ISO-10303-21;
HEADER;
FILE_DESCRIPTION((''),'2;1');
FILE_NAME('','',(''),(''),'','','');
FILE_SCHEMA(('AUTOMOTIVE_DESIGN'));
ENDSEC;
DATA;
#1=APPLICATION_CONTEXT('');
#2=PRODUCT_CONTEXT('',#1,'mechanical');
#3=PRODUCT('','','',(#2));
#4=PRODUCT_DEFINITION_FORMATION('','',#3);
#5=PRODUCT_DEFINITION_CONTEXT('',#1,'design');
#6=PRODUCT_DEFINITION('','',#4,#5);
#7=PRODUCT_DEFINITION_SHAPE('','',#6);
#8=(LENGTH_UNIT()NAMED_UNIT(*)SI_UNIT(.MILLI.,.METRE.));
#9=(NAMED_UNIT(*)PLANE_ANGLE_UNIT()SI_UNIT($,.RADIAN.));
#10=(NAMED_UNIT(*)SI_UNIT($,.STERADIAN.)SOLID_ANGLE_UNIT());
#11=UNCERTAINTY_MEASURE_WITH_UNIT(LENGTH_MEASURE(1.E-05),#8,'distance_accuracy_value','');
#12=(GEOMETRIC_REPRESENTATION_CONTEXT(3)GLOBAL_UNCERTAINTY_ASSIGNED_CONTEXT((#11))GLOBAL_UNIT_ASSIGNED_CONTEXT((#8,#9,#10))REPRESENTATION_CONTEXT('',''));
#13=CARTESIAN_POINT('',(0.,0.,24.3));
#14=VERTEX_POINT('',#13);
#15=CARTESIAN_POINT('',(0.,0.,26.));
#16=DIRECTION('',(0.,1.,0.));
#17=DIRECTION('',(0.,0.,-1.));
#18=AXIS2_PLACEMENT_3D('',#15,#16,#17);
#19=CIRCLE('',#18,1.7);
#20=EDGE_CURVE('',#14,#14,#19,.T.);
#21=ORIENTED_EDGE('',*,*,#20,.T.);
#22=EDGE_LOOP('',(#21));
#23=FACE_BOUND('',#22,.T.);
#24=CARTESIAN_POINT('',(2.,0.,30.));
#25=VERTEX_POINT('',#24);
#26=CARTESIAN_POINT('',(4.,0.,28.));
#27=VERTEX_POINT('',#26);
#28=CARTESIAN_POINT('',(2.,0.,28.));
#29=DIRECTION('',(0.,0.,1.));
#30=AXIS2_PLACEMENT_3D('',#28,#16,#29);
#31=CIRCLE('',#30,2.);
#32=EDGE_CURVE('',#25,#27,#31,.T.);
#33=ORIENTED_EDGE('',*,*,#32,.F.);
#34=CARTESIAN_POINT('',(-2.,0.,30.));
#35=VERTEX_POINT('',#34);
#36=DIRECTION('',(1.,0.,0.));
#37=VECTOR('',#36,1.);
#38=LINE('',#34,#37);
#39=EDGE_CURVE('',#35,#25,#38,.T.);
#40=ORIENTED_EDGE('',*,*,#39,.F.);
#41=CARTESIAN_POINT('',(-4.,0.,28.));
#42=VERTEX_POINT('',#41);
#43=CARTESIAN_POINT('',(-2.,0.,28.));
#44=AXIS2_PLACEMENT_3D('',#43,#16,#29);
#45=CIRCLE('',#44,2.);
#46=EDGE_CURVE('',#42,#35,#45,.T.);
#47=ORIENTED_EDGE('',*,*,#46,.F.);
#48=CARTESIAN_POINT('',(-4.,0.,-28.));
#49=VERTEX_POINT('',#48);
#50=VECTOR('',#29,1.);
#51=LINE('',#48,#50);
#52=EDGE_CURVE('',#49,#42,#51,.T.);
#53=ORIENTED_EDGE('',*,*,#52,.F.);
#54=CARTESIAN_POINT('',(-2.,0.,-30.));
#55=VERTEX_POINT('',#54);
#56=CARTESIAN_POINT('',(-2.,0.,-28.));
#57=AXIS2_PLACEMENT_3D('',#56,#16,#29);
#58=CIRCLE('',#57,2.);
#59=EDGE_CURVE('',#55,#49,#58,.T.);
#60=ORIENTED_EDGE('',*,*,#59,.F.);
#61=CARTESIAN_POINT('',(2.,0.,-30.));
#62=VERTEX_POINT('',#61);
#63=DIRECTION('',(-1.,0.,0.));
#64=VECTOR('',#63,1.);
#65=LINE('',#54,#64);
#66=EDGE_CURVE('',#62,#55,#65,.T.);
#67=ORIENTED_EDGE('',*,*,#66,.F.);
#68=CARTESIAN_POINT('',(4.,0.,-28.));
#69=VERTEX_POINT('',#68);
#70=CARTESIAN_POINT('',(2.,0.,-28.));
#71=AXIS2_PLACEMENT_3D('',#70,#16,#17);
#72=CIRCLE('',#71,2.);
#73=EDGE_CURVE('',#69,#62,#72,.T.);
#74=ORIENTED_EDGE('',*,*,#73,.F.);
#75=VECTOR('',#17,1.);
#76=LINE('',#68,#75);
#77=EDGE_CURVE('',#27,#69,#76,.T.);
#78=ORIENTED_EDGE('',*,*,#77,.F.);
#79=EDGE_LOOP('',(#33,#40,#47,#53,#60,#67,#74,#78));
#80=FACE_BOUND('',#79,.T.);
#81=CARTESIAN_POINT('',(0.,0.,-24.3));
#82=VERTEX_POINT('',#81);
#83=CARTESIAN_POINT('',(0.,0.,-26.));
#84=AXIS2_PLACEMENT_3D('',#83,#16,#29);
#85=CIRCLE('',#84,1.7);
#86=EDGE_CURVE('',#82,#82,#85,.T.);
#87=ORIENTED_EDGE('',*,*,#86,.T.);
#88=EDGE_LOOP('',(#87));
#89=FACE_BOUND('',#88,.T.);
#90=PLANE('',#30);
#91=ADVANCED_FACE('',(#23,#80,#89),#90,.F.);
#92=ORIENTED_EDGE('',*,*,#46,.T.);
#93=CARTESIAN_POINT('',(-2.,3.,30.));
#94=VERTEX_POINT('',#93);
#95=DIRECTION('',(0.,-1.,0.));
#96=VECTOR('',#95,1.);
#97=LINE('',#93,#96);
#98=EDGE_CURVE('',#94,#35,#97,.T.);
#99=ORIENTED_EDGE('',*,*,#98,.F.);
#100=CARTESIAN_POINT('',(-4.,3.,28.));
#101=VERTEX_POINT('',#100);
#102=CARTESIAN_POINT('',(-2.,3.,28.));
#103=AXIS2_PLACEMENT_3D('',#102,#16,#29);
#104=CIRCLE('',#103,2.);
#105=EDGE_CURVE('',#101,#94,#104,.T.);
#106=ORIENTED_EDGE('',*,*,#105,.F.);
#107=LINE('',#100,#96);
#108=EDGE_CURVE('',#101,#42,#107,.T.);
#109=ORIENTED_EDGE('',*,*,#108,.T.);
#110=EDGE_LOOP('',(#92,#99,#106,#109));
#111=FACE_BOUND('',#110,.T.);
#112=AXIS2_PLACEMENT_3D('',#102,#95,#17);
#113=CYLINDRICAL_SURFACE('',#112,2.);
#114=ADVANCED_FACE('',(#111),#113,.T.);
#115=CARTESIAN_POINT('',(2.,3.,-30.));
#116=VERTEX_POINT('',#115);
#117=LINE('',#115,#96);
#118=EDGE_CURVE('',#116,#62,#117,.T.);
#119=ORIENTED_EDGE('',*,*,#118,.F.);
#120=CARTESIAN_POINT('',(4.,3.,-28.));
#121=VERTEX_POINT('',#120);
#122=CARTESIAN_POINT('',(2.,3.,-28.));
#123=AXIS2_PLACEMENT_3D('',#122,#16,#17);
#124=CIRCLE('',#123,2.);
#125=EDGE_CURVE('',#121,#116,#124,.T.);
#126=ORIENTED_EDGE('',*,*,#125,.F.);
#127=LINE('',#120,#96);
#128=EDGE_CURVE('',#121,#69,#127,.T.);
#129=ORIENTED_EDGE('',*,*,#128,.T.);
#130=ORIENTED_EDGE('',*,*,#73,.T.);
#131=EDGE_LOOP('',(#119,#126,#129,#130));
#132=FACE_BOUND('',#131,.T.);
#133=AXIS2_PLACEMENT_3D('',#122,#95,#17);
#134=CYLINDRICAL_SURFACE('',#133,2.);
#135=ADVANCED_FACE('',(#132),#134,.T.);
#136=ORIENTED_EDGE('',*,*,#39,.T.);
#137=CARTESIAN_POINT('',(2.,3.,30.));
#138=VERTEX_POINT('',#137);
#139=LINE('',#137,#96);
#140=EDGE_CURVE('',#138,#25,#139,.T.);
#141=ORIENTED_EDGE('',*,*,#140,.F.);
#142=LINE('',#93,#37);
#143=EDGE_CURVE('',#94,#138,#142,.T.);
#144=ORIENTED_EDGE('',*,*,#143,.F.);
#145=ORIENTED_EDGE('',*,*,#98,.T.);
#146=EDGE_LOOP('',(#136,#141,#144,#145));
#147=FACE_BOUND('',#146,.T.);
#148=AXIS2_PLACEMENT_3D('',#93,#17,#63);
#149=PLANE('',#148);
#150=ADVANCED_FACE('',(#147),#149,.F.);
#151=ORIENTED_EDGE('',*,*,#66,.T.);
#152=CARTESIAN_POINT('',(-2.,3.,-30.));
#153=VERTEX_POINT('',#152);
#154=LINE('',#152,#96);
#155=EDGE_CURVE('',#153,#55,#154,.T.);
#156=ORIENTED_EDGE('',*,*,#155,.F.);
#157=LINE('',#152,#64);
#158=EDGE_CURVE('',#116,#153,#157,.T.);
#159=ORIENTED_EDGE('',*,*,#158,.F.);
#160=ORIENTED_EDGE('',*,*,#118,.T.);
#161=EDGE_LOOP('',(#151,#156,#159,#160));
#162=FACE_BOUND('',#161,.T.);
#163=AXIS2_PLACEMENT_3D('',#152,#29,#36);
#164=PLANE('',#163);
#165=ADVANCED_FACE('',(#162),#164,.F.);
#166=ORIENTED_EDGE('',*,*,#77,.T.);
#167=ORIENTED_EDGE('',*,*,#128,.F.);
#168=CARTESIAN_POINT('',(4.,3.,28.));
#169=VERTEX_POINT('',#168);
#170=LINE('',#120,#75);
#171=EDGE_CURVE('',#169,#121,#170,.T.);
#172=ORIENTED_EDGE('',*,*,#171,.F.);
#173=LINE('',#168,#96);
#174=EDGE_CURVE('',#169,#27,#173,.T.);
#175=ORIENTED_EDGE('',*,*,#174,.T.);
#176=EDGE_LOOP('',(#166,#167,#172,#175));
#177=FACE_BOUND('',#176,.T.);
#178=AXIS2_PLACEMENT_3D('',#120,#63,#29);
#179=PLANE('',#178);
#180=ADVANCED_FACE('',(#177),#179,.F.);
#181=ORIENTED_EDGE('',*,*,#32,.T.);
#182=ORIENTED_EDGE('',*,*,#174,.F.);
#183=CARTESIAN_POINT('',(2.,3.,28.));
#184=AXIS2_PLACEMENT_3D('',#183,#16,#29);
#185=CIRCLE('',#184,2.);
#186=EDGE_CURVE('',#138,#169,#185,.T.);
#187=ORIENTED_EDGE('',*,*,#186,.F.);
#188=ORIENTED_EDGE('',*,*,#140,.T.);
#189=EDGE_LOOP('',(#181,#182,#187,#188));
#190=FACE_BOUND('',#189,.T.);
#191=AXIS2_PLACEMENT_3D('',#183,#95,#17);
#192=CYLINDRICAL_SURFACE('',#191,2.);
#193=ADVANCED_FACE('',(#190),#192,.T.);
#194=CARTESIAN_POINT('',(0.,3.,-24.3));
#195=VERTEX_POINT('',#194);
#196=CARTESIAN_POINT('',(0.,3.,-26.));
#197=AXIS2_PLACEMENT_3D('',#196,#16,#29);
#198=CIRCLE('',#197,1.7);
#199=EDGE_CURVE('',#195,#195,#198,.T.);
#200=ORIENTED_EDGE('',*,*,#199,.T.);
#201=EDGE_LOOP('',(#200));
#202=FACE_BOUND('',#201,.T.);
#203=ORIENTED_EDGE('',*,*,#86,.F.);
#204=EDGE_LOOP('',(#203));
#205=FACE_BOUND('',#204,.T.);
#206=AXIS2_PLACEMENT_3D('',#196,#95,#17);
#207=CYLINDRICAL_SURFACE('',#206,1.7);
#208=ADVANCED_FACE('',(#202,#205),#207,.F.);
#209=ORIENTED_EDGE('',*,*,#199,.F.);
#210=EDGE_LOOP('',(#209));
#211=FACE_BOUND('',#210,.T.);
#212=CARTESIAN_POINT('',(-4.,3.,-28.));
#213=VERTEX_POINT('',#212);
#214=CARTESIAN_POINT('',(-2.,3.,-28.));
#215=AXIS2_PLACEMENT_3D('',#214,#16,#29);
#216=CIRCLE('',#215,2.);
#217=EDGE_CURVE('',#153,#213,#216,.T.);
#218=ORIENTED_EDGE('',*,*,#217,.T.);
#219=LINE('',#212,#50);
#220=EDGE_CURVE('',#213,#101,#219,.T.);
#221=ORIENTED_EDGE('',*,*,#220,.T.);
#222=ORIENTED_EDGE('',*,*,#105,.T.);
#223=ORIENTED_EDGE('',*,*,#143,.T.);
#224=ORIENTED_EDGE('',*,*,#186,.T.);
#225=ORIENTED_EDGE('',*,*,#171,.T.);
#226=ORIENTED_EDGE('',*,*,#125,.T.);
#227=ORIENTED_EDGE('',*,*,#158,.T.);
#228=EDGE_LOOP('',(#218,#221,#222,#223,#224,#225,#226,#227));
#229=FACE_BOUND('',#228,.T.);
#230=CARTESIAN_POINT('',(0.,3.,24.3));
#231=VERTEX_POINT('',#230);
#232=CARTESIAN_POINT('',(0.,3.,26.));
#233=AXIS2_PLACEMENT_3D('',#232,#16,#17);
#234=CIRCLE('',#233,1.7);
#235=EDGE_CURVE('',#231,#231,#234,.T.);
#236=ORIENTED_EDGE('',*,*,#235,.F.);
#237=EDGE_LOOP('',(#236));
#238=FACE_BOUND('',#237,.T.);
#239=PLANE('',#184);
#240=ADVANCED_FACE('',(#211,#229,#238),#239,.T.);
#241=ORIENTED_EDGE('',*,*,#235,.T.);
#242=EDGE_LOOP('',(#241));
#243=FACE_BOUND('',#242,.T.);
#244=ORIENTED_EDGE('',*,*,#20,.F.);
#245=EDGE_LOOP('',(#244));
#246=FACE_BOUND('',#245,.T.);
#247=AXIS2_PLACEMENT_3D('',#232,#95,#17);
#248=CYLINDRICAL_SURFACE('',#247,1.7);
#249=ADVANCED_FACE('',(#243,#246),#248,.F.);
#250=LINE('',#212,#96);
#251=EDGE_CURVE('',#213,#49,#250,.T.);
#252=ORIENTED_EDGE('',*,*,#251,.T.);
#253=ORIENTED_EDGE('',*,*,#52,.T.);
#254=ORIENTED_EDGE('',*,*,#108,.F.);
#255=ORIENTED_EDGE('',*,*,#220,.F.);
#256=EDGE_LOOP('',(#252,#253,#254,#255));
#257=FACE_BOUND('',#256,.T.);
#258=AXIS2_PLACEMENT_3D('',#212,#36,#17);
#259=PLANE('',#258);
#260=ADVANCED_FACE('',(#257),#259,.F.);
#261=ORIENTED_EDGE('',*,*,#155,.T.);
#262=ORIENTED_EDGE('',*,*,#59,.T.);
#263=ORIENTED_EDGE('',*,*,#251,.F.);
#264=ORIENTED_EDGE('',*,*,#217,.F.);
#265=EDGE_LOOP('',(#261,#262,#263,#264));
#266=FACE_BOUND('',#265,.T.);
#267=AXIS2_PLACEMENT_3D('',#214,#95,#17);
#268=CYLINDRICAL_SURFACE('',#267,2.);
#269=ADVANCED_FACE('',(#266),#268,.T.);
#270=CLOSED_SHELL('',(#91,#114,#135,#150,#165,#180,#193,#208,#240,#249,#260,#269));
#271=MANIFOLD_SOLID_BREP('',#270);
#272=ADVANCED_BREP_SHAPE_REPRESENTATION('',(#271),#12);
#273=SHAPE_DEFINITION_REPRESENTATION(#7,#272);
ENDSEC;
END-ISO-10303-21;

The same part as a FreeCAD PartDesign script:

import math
import FreeCAD as App
import Part
import Sketcher

doc = App.newDocument("Part")
params = doc.addObject("Spreadsheet::Sheet", "Params")
for row, (alias, value) in enumerate([
    ("sketch1_radius", "2 mm"),
    ("sketch1_diameter", "3.4 mm"),
    ("sketch1_width", "4 mm"),
    ("sketch1_height", "56 mm"),
    ("pad1_length", "3 mm"),
], start=1):
    params.set(f"A{row}", alias)
    params.set(f"B{row}", "=" + value)
    params.setAlias(f"B{row}", alias)

body = doc.addObject("PartDesign::Body", "Body")

# Sketch on XZ plane
sketch1 = body.newObject("Sketcher::SketchObject", "Sketch")
sketch1.AttachmentSupport = (doc.getObject("XZ_Plane"), [""])
sketch1.MapMode = "FlatFace"
sketch1.addGeometry([
    Part.LineSegment(App.Vector(2, -30, 0), App.Vector(-2, -30, 0)),  # 0
    Part.ArcOfCircle(Part.Circle(App.Vector(-2, -28, 0), App.Vector(0, 0, 1), 2), math.radians(-180), math.radians(-90)),  # 1
    Part.LineSegment(App.Vector(-4, -28, 0), App.Vector(-4, 28, 0)),  # 2
    Part.ArcOfCircle(Part.Circle(App.Vector(-2, 28, 0), App.Vector(0, 0, 1), 2), math.radians(90), math.radians(180)),  # 3
    Part.LineSegment(App.Vector(-2, 30, 0), App.Vector(2, 30, 0)),  # 4
    Part.ArcOfCircle(Part.Circle(App.Vector(2, 28, 0), App.Vector(0, 0, 1), 2), math.radians(0), math.radians(90)),  # 5
    Part.LineSegment(App.Vector(4, 28, 0), App.Vector(4, -28, 0)),  # 6
    Part.ArcOfCircle(Part.Circle(App.Vector(2, -28, 0), App.Vector(0, 0, 1), 2), math.radians(-90), math.radians(0)),  # 7
    Part.Circle(App.Vector(0, 26, 0), App.Vector(0, 0, 1), 1.7),  # 8
    Part.Circle(App.Vector(0, -26, 0), App.Vector(0, 0, 1), 1.7),  # 9
], False)
sketch1.addConstraint([
    Sketcher.Constraint("Tangent", 0, 2, 1, 2),
    Sketcher.Constraint("Tangent", 1, 1, 2, 1),
    Sketcher.Constraint("Tangent", 2, 2, 3, 2),
    Sketcher.Constraint("Tangent", 3, 1, 4, 1),
    Sketcher.Constraint("Tangent", 4, 2, 5, 2),
    Sketcher.Constraint("Tangent", 5, 1, 6, 1),
    Sketcher.Constraint("Tangent", 6, 2, 7, 2),
    Sketcher.Constraint("Tangent", 7, 1, 0, 1),
    Sketcher.Constraint("Horizontal", 0),
    Sketcher.Constraint("Vertical", 2),
    Sketcher.Constraint("Horizontal", 4),
    Sketcher.Constraint("Vertical", 6),
    Sketcher.Constraint("Equal", 1, 3),
    Sketcher.Constraint("Equal", 3, 5),
    Sketcher.Constraint("Equal", 5, 7),
    Sketcher.Constraint("Equal", 8, 9),
    Sketcher.Constraint("Symmetric", 1, 3, 5, 3, -1, 1),
    Sketcher.Constraint("Symmetric", 8, 3, 9, 3, -1, 1),
    Sketcher.Constraint("PointOnObject", 8, 3, -2),
    Sketcher.Constraint("Radius", 1, 2.0),
    Sketcher.Constraint("Diameter", 8, 3.4),
    Sketcher.Constraint("DistanceX", 0, 2, 0, 1, 4.0),
    Sketcher.Constraint("DistanceY", 2, 1, 2, 2, 56.0),
    Sketcher.Constraint("DistanceY", -1, 1, 8, 3, 26.0),
])
sketch1.setExpression("Constraints[19]", "Params.sketch1_radius")
sketch1.setExpression("Constraints[20]", "Params.sketch1_diameter")
sketch1.setExpression("Constraints[21]", "Params.sketch1_width")
sketch1.setExpression("Constraints[22]", "Params.sketch1_height")
pad1 = body.newObject("PartDesign::Pad", "Pad")
pad1.Profile = sketch1
pad1.setExpression("Length", "Params.pad1_length")
pad1.Reversed = True

doc.recompute()
